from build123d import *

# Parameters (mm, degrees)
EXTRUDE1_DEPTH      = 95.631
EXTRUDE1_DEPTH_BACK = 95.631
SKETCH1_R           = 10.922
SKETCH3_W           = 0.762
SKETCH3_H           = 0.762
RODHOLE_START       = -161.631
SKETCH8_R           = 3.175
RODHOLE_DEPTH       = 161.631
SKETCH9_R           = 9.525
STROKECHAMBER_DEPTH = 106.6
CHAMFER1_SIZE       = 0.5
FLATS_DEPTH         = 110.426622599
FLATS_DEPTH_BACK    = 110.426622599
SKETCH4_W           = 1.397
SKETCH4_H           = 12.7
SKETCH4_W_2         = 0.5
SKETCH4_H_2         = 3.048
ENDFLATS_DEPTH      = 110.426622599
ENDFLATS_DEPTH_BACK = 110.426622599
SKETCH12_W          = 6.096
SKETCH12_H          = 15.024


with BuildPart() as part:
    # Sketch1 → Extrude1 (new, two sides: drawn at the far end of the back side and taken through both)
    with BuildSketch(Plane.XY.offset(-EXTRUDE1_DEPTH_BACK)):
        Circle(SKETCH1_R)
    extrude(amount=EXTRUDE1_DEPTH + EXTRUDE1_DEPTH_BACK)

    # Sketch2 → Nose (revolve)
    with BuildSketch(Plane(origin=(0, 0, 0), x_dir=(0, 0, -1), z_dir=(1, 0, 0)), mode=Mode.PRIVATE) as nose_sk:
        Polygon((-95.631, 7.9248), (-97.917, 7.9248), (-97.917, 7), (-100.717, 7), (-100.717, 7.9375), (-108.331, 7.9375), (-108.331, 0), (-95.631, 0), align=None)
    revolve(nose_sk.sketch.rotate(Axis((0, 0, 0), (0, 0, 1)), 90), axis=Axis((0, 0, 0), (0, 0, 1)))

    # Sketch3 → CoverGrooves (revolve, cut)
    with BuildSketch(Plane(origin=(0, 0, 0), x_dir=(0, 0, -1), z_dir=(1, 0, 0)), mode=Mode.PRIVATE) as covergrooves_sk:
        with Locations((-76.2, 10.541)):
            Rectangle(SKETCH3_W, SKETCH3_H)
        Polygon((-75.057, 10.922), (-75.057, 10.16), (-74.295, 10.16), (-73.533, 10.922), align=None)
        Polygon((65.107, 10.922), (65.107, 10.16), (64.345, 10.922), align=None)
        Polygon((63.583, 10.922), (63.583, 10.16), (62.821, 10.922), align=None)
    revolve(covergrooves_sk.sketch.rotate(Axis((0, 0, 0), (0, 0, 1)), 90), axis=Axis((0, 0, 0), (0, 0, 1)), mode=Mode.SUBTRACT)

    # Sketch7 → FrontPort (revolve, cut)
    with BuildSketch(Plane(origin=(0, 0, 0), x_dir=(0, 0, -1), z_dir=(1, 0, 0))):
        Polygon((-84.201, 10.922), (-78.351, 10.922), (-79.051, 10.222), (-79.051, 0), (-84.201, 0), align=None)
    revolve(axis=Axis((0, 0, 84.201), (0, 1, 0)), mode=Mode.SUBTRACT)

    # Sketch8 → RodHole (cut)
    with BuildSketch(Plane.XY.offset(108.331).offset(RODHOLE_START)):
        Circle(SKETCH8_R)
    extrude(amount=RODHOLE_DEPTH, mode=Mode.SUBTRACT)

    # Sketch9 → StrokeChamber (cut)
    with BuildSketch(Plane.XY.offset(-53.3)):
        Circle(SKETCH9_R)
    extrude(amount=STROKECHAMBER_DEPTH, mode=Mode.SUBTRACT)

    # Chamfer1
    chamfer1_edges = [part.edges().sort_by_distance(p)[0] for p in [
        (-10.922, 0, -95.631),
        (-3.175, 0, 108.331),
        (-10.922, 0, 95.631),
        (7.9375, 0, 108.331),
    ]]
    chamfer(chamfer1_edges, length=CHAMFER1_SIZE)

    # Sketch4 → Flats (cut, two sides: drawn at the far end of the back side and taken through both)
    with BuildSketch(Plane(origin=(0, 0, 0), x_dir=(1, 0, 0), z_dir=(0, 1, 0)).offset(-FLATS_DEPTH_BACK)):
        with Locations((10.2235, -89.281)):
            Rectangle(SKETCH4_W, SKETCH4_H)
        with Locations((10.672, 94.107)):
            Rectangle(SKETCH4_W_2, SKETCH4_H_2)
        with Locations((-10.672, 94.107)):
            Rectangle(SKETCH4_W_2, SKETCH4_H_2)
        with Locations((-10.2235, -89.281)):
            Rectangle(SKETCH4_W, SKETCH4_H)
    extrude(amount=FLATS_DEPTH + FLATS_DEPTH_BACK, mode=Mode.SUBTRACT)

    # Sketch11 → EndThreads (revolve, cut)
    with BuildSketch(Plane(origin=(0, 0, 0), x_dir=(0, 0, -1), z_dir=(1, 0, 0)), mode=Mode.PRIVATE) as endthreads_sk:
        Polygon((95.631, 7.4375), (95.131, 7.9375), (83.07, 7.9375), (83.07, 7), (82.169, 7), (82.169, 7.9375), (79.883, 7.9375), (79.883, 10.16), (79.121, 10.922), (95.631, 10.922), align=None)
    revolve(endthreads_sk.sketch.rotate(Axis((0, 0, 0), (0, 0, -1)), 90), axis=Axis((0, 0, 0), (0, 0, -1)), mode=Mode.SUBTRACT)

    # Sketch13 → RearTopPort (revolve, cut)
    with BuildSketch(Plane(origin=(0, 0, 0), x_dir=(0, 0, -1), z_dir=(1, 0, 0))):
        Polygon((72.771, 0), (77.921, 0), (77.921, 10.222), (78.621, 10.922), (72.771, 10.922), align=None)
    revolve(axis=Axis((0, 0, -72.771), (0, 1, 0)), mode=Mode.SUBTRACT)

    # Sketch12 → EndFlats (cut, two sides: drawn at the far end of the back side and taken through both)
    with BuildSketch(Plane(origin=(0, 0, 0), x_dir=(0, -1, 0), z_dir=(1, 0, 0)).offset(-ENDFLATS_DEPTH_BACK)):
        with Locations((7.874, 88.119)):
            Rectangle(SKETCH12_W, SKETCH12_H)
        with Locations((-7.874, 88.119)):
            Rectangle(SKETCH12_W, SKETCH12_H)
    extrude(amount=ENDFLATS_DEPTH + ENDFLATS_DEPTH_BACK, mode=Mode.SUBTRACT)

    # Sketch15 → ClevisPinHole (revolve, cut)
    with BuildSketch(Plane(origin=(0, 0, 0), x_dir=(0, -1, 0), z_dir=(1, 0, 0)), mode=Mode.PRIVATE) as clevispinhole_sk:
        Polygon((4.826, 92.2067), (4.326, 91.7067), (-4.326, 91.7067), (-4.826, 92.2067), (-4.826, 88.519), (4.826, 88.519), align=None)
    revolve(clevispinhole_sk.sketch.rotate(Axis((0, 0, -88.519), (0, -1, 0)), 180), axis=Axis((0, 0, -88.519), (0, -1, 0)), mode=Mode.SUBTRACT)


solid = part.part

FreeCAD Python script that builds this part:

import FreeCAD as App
import Part
import Sketcher
from FreeCAD import Vector
Q = App.Units.Quantity


def edges_at(feature, points):
    """Names of the edges that pass closest to the given points."""
    edges = feature.Shape.Edges
    near = lambda p: min(range(len(edges)), key=lambda i: edges[i].distToShape(Part.Vertex(*p))[0])
    return sorted({f"Edge{near(p) + 1}" for p in points})


def add_polygon(sketch, points):
    """Adds a closed chain of lines whose ends are joined by coincident constraints."""
    first, n = sketch.GeometryCount, len(points)
    for a, b in zip(points, points[1:] + points[:1]):
        sketch.addGeometry(Part.LineSegment(App.Vector(*a, 0), App.Vector(*b, 0)), False)
    for i in range(n):
        sketch.addConstraint(Sketcher.Constraint("Coincident", first + i, 2, first + (i + 1) % n, 1))

doc = App.newDocument("Part")
body = doc.addObject("PartDesign::Body", "Body")

# Sketch on XY plane
sketch1 = body.newObject("Sketcher::SketchObject", "Sketch")
sketch1.AttachmentSupport = (doc.getObject("XY_Plane"), [""])
sketch1.MapMode = "FlatFace"
sketch1.addGeometry(Part.Circle(Vector(0, 0, 0), Vector(0, 0, 1), 10.922), False)
sketch1.addConstraint(Sketcher.Constraint("Coincident", 0, 3, -1, 1))
sketch1.addConstraint(Sketcher.Constraint("Diameter", 0, Q("0.86 in")))
pad1 = body.newObject("PartDesign::Pad", "Pad")
pad1.Profile = sketch1
pad1.Type = "TwoLengths"
pad1.Length = Q("3.765 in")
pad1.Length2 = Q("3.765 in")

# Sketch on YZ plane
sketch2 = body.newObject("Sketcher::SketchObject", "Sketch001")
sketch2.AttachmentSupport = (doc.getObject("YZ_Plane"), [""])
sketch2.MapMode = "FlatFace"
add_polygon(sketch2, [(7.9248, 95.631), (7.9248, 97.917), (7, 97.917), (7, 100.717), (7.9375, 100.717), (7.9375, 108.331), (0, 108.331), (0, 95.631)])  # lines 0-7
sketch2.addConstraint(Sketcher.Constraint("Vertical", 0))
sketch2.addConstraint(Sketcher.Constraint("Horizontal", 1))
sketch2.addConstraint(Sketcher.Constraint("Vertical", 2))
sketch2.addConstraint(Sketcher.Constraint("Horizontal", 3))
sketch2.addConstraint(Sketcher.Constraint("Vertical", 4))
sketch2.addConstraint(Sketcher.Constraint("Horizontal", 5))
sketch2.addConstraint(Sketcher.Constraint("Vertical", 6))
sketch2.addConstraint(Sketcher.Constraint("Horizontal", 7))
sketch2.addConstraint(Sketcher.Constraint("PointOnObject", 5, 2, -2))
sketch2.addConstraint(Sketcher.Constraint("DistanceY", 6, 2, 6, 1, Q("0.5 in")))
sketch2.addConstraint(Sketcher.Constraint("DistanceY", 0, 1, 0, 2, Q("0.09 in")))
sketch2.addConstraint(Sketcher.Constraint("DistanceX", 5, 2, 5, 1, Q("0.3125 in")))
sketch2.addConstraint(Sketcher.Constraint("DistanceX", 7, 1, 7, 2, Q("0.312 in")))
sketch2.addConstraint(Sketcher.Constraint("DistanceY", -1, 1, 0, 2, Q("3.855 in")))
sketch2.addConstraint(Sketcher.Constraint("DistanceX", 1, 2, 1, 1, Q("0.9248 mm")))
sketch2.addConstraint(Sketcher.Constraint("DistanceY", 2, 1, 2, 2, Q("2.8 mm")))
revolution = body.newObject("PartDesign::Revolution", "Revolution")
revolution.Profile = sketch2
revolution.ReferenceAxis = (sketch2, ["V_Axis"])
revolution.Angle = 360

# Sketch on YZ plane
sketch3 = body.newObject("Sketcher::SketchObject", "Sketch002")
sketch3.AttachmentSupport = (doc.getObject("YZ_Plane"), [""])
sketch3.MapMode = "FlatFace"
add_polygon(sketch3, [(10.922, 76.581), (10.16, 76.581), (10.16, 75.819), (10.922, 75.819)])  # lines 0-3
add_polygon(sketch3, [(10.922, 75.057), (10.16, 75.057), (10.16, 74.295), (10.922, 73.533)])  # lines 4-7
add_polygon(sketch3, [(10.16, -65.107), (10.922, -65.107), (10.922, -64.345)])  # lines 8-10
add_polygon(sketch3, [(10.16, -63.583), (10.922, -63.583), (10.922, -62.821)])  # lines 11-13
sketch3.addConstraint(Sketcher.Constraint("Horizontal", 0))
sketch3.addConstraint(Sketcher.Constraint("Vertical", 1))
sketch3.addConstraint(Sketcher.Constraint("Horizontal", 2))
sketch3.addConstraint(Sketcher.Constraint("Vertical", 3))
sketch3.addConstraint(Sketcher.Constraint("Horizontal", 4))
sketch3.addConstraint(Sketcher.Constraint("Vertical", 5))
sketch3.addConstraint(Sketcher.Constraint("Vertical", 7))
sketch3.addConstraint(Sketcher.Constraint("Horizontal", 8))
sketch3.addConstraint(Sketcher.Constraint("Vertical", 9))
sketch3.addConstraint(Sketcher.Constraint("Horizontal", 11))
sketch3.addConstraint(Sketcher.Constraint("Vertical", 12))
sketch3.addConstraint(Sketcher.Constraint("Perpendicular", 6, 10))
sketch3.addConstraint(Sketcher.Constraint("Parallel", 10, 13))
sketch3.addConstraint(Sketcher.Constraint("Vertical", 1, 2, 4, 2))
sketch3.addConstraint(Sketcher.Constraint("Vertical", 3, 2, 6, 2))
sketch3.addConstraint(Sketcher.Constraint("Vertical", 7, 2, 8, 2))
sketch3.addConstraint(Sketcher.Constraint("Vertical", 5, 2, 10, 2))
sketch3.addConstraint(Sketcher.Constraint("Vertical", 9, 2, 11, 2))
sketch3.addConstraint(Sketcher.Constraint("Vertical", 10, 2, 13, 2))
sketch3.addConstraint(Sketcher.Constraint("Equal", 11, 1))
sketch3.addConstraint(Sketcher.Constraint("Equal", 3, 5))
sketch3.addConstraint(Sketcher.Constraint("Equal", 5, 9))
sketch3.addConstraint(Sketcher.Constraint("DistanceX", 0, 2, 0, 1, Q("0.03 in")))
sketch3.addConstraint(Sketcher.Constraint("DistanceX", -1, 1, 0, 2, Q("0.4 in")))
sketch3.addConstraint(Sketcher.Constraint("DistanceY", 4, 2, 1, 2, Q("0.03 in")))
sketch3.addConstraint(Sketcher.Constraint("DistanceY", 9, 2, 11, 2, Q("0.03 in")))
sketch3.addConstraint(Sketcher.Constraint("DistanceY", -1, 1, 0, 2, Q("3.015 in")))
sketch3.addConstraint(Sketcher.Constraint("DistanceY", 8, 2, -1, 1, Q("65.107 mm")))
groove = body.newObject("PartDesign::Groove", "Groove")
groove.Profile = sketch3
groove.ReferenceAxis = (sketch3, ["V_Axis"])
groove.Angle = 360

# Sketch on YZ plane
sketch4 = body.newObject("Sketcher::SketchObject", "Sketch003")
sketch4.AttachmentSupport = (doc.getObject("YZ_Plane"), [""])
sketch4.MapMode = "FlatFace"
add_polygon(sketch4, [(10.922, 78.351), (10.922, 84.201), (0, 84.201), (0, 79.051), (10.222, 79.051)])  # lines 0-4
sketch4.addGeometry(Part.LineSegment(Vector(0, 84.201, 0), Vector(10.922, 84.201, 0)), True)  # axis
sketch4.addConstraint(Sketcher.Constraint("Vertical", 0))
sketch4.addConstraint(Sketcher.Constraint("Horizontal", 1))
sketch4.addConstraint(Sketcher.Constraint("Vertical", 2))
sketch4.addConstraint(Sketcher.Constraint("Horizontal", 3))
sketch4.addConstraint(Sketcher.Constraint("Horizontal", 5))
sketch4.addConstraint(Sketcher.Constraint("Coincident", 5, 1, 1, 2))
sketch4.addConstraint(Sketcher.Constraint("PointOnObject", 1, 2, -2))
sketch4.addConstraint(Sketcher.Constraint("Vertical", 4, 2, 5, 2))
sketch4.addConstraint(Sketcher.Constraint("Angle", 4, Q("-45 deg")))
sketch4.addConstraint(Sketcher.Constraint("DistanceX", 1, 2, 1, 1, Q("0.43 in")))
sketch4.addConstraint(Sketcher.Constraint("DistanceY", -1, 1, 0, 2, Q("3.315 in")))
sketch4.addConstraint(Sketcher.Constraint("DistanceX", 3, 1, 3, 2, Q("10.222 mm")))
sketch4.addConstraint(Sketcher.Constraint("DistanceY", 0, 1, 0, 2, Q("5.85 mm")))
groove2 = body.newObject("PartDesign::Groove", "Groove001")
groove2.Profile = sketch4
groove2.ReferenceAxis = (sketch4, ["Axis0"])
groove2.Angle = 360

# Sketch on XY plane
sketch5 = body.newObject("Sketcher::SketchObject", "Sketch004")
sketch5.AttachmentSupport = (doc.getObject("XY_Plane"), [""])
sketch5.MapMode = "FlatFace"
sketch5.AttachmentOffset = App.Placement(Vector(0, 0, -53.3), App.Rotation())
sketch5.addGeometry(Part.Circle(Vector(0, 0, 0), Vector(0, 0, 1), 3.175), False)
sketch5.addConstraint(Sketcher.Constraint("Coincident", 0, 3, -1, 1))
sketch5.addConstraint(Sketcher.Constraint("Diameter", 0, Q("0.25 in")))
pocket1 = body.newObject("PartDesign::Pocket", "Pocket")
pocket1.Profile = sketch5
pocket1.Length = 161.631
pocket1.Reversed = True

# Sketch on XY plane
sketch6 = body.newObject("Sketcher::SketchObject", "Sketch005")
sketch6.AttachmentSupport = (doc.getObject("XY_Plane"), [""])
sketch6.MapMode = "FlatFace"
sketch6.AttachmentOffset = App.Placement(Vector(0, 0, -53.3), App.Rotation())
sketch6.addGeometry(Part.Circle(Vector(0, 0, 0), Vector(0, 0, 1), 9.525), False)
sketch6.addConstraint(Sketcher.Constraint("Coincident", 0, 3, -1, 1))
sketch6.addConstraint(Sketcher.Constraint("Diameter", 0, Q("0.75 in")))
pocket2 = body.newObject("PartDesign::Pocket", "Pocket001")
pocket2.Profile = sketch6
pocket2.Length = 106.6
pocket2.Reversed = True
doc.recompute()

chamfer = body.newObject("PartDesign::Chamfer", "Chamfer")
chamfer.Base = (pocket2, edges_at(pocket2, [
    (-10.922, 0, -95.631),
    (-3.175, 0, 108.331),
    (-10.922, 0, 95.631),
    (7.938, 0, 108.331),
]))
chamfer.Size = 0.5

# Sketch on XZ plane
sketch7 = body.newObject("Sketcher::SketchObject", "Sketch006")
sketch7.AttachmentSupport = (doc.getObject("XZ_Plane"), [""])
sketch7.MapMode = "FlatFace"
add_polygon(sketch7, [(9.525, 82.931), (9.525, 95.631), (10.922, 95.631), (10.922, 82.931)])  # lines 0-3
add_polygon(sketch7, [(10.422, -95.631), (10.422, -92.583), (10.922, -92.583), (10.922, -95.631)])  # lines 4-7
add_polygon(sketch7, [(-10.922, -95.631), (-10.922, -92.583), (-10.422, -92.583), (-10.422, -95.631)])  # lines 8-11
add_polygon(sketch7, [(-10.922, 82.931), (-10.922, 95.631), (-9.525, 95.631), (-9.525, 82.931)])  # lines 12-15
sketch7.addConstraint(Sketcher.Constraint("Vertical", 0))
sketch7.addConstraint(Sketcher.Constraint("Horizontal", 1))
sketch7.addConstraint(Sketcher.Constraint("Vertical", 2))
sketch7.addConstraint(Sketcher.Constraint("Horizontal", 3))
sketch7.addConstraint(Sketcher.Constraint("Vertical", 4))
sketch7.addConstraint(Sketcher.Constraint("Horizontal", 5))
sketch7.addConstraint(Sketcher.Constraint("Vertical", 6))
sketch7.addConstraint(Sketcher.Constraint("Horizontal", 7))
sketch7.addConstraint(Sketcher.Constraint("Vertical", 8))
sketch7.addConstraint(Sketcher.Constraint("Horizontal", 9))
sketch7.addConstraint(Sketcher.Constraint("Vertical", 10))
sketch7.addConstraint(Sketcher.Constraint("Horizontal", 11))
sketch7.addConstraint(Sketcher.Constraint("Vertical", 12))
sketch7.addConstraint(Sketcher.Constraint("Horizontal", 13))
sketch7.addConstraint(Sketcher.Constraint("Vertical", 14))
sketch7.addConstraint(Sketcher.Constraint("Horizontal", 15))
sketch7.addConstraint(Sketcher.Constraint("Symmetric", 1, 2, 11, 2, -1, 1))
sketch7.addConstraint(Sketcher.Constraint("Symmetric", 6, 2, 12, 2, -1, 1))
sketch7.addConstraint(Sketcher.Constraint("Symmetric", 5, 2, 8, 2, -2))
sketch7.addConstraint(Sketcher.Constraint("Symmetric", 7, 2, 10, 2, -2))
sketch7.addConstraint(Sketcher.Constraint("Symmetric", 3, 2, 14, 2, -2))
sketch7.addConstraint(Sketcher.Constraint("DistanceY", 0, 1, 0, 2, Q("0.5 in")))
sketch7.addConstraint(Sketcher.Constraint("DistanceY", 4, 1, 4, 2, Q("0.12 in")))
sketch7.addConstraint(Sketcher.Constraint("DistanceX", 1, 1, 1, 2, Q("0.055 in")))
sketch7.addConstraint(Sketcher.Constraint("DistanceX", -1, 1, 1, 2, Q("0.43 in")))
sketch7.addConstraint(Sketcher.Constraint("DistanceY", 4, 2, 2, 2, Q("6.91 in")))
sketch7.addConstraint(Sketcher.Constraint("DistanceX", 5, 1, 5, 2, Q("0.5 mm")))
pocket3 = body.newObject("PartDesign::Pocket", "Pocket002")
pocket3.Profile = sketch7
pocket3.Type = "ThroughAll"
pocket3.Midplane = True

# Sketch on YZ plane
sketch8 = body.newObject("Sketcher::SketchObject", "Sketch007")
sketch8.AttachmentSupport = (doc.getObject("YZ_Plane"), [""])
sketch8.MapMode = "FlatFace"
add_polygon(sketch8, [(7.9375, -95.131), (7.4375, -95.631), (10.922, -95.631), (10.922, -79.121), (10.16, -79.883), (7.9375, -79.883), (7.9375, -82.169), (7, -82.169), (7, -83.07), (7.9375, -83.07)])  # lines 0-9
sketch8.addConstraint(Sketcher.Constraint("Horizontal", 1))
sketch8.addConstraint(Sketcher.Constraint("Vertical", 2))
sketch8.addConstraint(Sketcher.Constraint("Horizontal", 4))
sketch8.addConstraint(Sketcher.Constraint("Vertical", 5))
sketch8.addConstraint(Sketcher.Constraint("Horizontal", 6))
sketch8.addConstraint(Sketcher.Constraint("Vertical", 7))
sketch8.addConstraint(Sketcher.Constraint("Horizontal", 8))
sketch8.addConstraint(Sketcher.Constraint("Vertical", 9))
sketch8.addConstraint(Sketcher.Constraint("Parallel", 0, 3))
sketch8.addConstraint(Sketcher.Constraint("Vertical", 5, 2, 8, 2))
sketch8.addConstraint(Sketcher.Constraint("Angle", 0, Q("-135 deg")))
sketch8.addConstraint(Sketcher.Constraint("DistanceY", 2, 1, 2, 2, Q("0.65 in")))
sketch8.addConstraint(Sketcher.Constraint("DistanceY", 5, 2, 5, 1, Q("0.09 in")))
sketch8.addConstraint(Sketcher.Constraint("DistanceX", -1, 1, 3, 2, Q("0.4 in")))
sketch8.addConstraint(Sketcher.Constraint("DistanceX", -1, 1, 1, 2, Q("0.43 in")))
sketch8.addConstraint(Sketcher.Constraint("DistanceX", 4, 2, 4, 1, Q("0.0875 in")))
sketch8.addConstraint(Sketcher.Constraint("DistanceY", 0, 2, -1, 1, Q("3.765 in")))
sketch8.addConstraint(Sketcher.Constraint("DistanceX", 1, 1, 1, 2, Q("3.4845 mm")))
sketch8.addConstraint(Sketcher.Constraint("DistanceX", 6, 2, 6, 1, Q("0.9375 mm")))
sketch8.addConstraint(Sketcher.Constraint("DistanceY", 7, 2, 7, 1, Q("0.901 mm")))
groove3 = body.newObject("PartDesign::Groove", "Groove002")
groove3.Profile = sketch8
groove3.ReferenceAxis = (sketch8, ["V_Axis"])
groove3.Angle = 360

# Sketch on YZ plane
sketch9 = body.newObject("Sketcher::SketchObject", "Sketch008")
sketch9.AttachmentSupport = (doc.getObject("YZ_Plane"), [""])
sketch9.MapMode = "FlatFace"
add_polygon(sketch9, [(0, -72.771), (0, -77.921), (10.222, -77.921), (10.922, -78.621), (10.922, -72.771)])  # lines 0-4
sketch9.addGeometry(Part.LineSegment(Vector(0, -72.771, 0), Vector(10.922, -72.771, 0)), True)  # axis
sketch9.addConstraint(Sketcher.Constraint("Vertical", 0))
sketch9.addConstraint(Sketcher.Constraint("Horizontal", 1))
sketch9.addConstraint(Sketcher.Constraint("Vertical", 3))
sketch9.addConstraint(Sketcher.Constraint("Horizontal", 4))
sketch9.addConstraint(Sketcher.Constraint("Horizontal", 5))
sketch9.addConstraint(Sketcher.Constraint("Coincident", 5, 1, 4, 2))
sketch9.addConstraint(Sketcher.Constraint("PointOnObject", 0, 2, -2))
sketch9.addConstraint(Sketcher.Constraint("Vertical", 2, 2, 5, 2))
sketch9.addConstraint(Sketcher.Constraint("Angle", 2, Q("-45 deg")))
sketch9.addConstraint(Sketcher.Constraint("DistanceX", 4, 2, 4, 1, Q("0.43 in")))
sketch9.addConstraint(Sketcher.Constraint("DistanceY", 3, 2, -1, 1, Q("2.865 in")))
sketch9.addConstraint(Sketcher.Constraint("DistanceX", 1, 1, 1, 2, Q("10.222 mm")))
sketch9.addConstraint(Sketcher.Constraint("DistanceY", 0, 2, 0, 1, Q("5.15 mm")))
groove4 = body.newObject("PartDesign::Groove", "Groove003")
groove4.Profile = sketch9
groove4.ReferenceAxis = (sketch9, ["Axis0"])
groove4.Angle = 360

# Sketch on YZ plane
sketch10 = body.newObject("Sketcher::SketchObject", "Sketch009")
sketch10.AttachmentSupport = (doc.getObject("YZ_Plane"), [""])
sketch10.MapMode = "FlatFace"
add_polygon(sketch10, [(-4.826, -95.631), (-4.826, -80.607), (-10.922, -80.607), (-10.922, -95.631)])  # lines 0-3
add_polygon(sketch10, [(10.922, -95.631), (10.922, -80.607), (4.826, -80.607), (4.826, -95.631)])  # lines 4-7
sketch10.addConstraint(Sketcher.Constraint("Vertical", 0))
sketch10.addConstraint(Sketcher.Constraint("Horizontal", 1))
sketch10.addConstraint(Sketcher.Constraint("Vertical", 2))
sketch10.addConstraint(Sketcher.Constraint("Horizontal", 3))
sketch10.addConstraint(Sketcher.Constraint("Vertical", 4))
sketch10.addConstraint(Sketcher.Constraint("Horizontal", 5))
sketch10.addConstraint(Sketcher.Constraint("Vertical", 6))
sketch10.addConstraint(Sketcher.Constraint("Horizontal", 7))
sketch10.addConstraint(Sketcher.Constraint("Symmetric", 1, 2, 4, 2, -2))
sketch10.addConstraint(Sketcher.Constraint("Symmetric", 3, 2, 6, 2, -2))
sketch10.addConstraint(Sketcher.Constraint("DistanceX", 1, 2, 1, 1, Q("0.24 in")))
sketch10.addConstraint(Sketcher.Constraint("DistanceX", 0, 2, -1, 1, Q("0.19 in")))
sketch10.addConstraint(Sketcher.Constraint("DistanceY", 2, 2, -1, 1, Q("3.765 in")))
sketch10.addConstraint(Sketcher.Constraint("DistanceY", 0, 1, 0, 2, Q("15.024 mm")))
pocket4 = body.newObject("PartDesign::Pocket", "Pocket003")
pocket4.Profile = sketch10
pocket4.Type = "ThroughAll"
pocket4.Midplane = True

# Sketch on YZ plane
sketch11 = body.newObject("Sketcher::SketchObject", "Sketch010")
sketch11.AttachmentSupport = (doc.getObject("YZ_Plane"), [""])
sketch11.MapMode = "FlatFace"
add_polygon(sketch11, [(-4.826, -92.2067), (-4.326, -91.7067), (4.326, -91.7067), (4.826, -92.2067), (4.826, -88.519), (-4.826, -88.519)])  # lines 0-5
sketch11.addGeometry(Part.LineSegment(Vector(4.826, -88.519, 0), Vector(-4.826, -88.519, 0)), True)  # axis
sketch11.addConstraint(Sketcher.Constraint("Horizontal", 1))
sketch11.addConstraint(Sketcher.Constraint("Vertical", 3))
sketch11.addConstraint(Sketcher.Constraint("Horizontal", 4))
sketch11.addConstraint(Sketcher.Constraint("Vertical", 5))
sketch11.addConstraint(Sketcher.Constraint("Horizontal", 6))
sketch11.addConstraint(Sketcher.Constraint("Coincident", 6, 1, 3, 2))
sketch11.addConstraint(Sketcher.Constraint("Symmetric", 2, 2, 5, 2, -2))
sketch11.addConstraint(Sketcher.Constraint("Perpendicular", 0, 2))
sketch11.addConstraint(Sketcher.Constraint("Vertical", 5, 2, 6, 2))
sketch11.addConstraint(Sketcher.Constraint("Equal", 0, 2))
sketch11.addConstraint(Sketcher.Constraint("DistanceX", 4, 2, 4, 1, Q("0.38 in")))
sketch11.addConstraint(Sketcher.Constraint("DistanceY", 3, 2, -1, 1, Q("3.485 in")))
sketch11.addConstraint(Sketcher.Constraint("DistanceX", 1, 1, 1, 2, Q("8.652 mm")))
sketch11.addConstraint(Sketcher.Constraint("DistanceY", 3, 1, 3, 2, Q("3.6877 mm")))
groove5 = body.newObject("PartDesign::Groove", "Groove004")
groove5.Profile = sketch11
groove5.ReferenceAxis = (sketch11, ["Axis0"])
groove5.Angle = 360

doc.recompute()
